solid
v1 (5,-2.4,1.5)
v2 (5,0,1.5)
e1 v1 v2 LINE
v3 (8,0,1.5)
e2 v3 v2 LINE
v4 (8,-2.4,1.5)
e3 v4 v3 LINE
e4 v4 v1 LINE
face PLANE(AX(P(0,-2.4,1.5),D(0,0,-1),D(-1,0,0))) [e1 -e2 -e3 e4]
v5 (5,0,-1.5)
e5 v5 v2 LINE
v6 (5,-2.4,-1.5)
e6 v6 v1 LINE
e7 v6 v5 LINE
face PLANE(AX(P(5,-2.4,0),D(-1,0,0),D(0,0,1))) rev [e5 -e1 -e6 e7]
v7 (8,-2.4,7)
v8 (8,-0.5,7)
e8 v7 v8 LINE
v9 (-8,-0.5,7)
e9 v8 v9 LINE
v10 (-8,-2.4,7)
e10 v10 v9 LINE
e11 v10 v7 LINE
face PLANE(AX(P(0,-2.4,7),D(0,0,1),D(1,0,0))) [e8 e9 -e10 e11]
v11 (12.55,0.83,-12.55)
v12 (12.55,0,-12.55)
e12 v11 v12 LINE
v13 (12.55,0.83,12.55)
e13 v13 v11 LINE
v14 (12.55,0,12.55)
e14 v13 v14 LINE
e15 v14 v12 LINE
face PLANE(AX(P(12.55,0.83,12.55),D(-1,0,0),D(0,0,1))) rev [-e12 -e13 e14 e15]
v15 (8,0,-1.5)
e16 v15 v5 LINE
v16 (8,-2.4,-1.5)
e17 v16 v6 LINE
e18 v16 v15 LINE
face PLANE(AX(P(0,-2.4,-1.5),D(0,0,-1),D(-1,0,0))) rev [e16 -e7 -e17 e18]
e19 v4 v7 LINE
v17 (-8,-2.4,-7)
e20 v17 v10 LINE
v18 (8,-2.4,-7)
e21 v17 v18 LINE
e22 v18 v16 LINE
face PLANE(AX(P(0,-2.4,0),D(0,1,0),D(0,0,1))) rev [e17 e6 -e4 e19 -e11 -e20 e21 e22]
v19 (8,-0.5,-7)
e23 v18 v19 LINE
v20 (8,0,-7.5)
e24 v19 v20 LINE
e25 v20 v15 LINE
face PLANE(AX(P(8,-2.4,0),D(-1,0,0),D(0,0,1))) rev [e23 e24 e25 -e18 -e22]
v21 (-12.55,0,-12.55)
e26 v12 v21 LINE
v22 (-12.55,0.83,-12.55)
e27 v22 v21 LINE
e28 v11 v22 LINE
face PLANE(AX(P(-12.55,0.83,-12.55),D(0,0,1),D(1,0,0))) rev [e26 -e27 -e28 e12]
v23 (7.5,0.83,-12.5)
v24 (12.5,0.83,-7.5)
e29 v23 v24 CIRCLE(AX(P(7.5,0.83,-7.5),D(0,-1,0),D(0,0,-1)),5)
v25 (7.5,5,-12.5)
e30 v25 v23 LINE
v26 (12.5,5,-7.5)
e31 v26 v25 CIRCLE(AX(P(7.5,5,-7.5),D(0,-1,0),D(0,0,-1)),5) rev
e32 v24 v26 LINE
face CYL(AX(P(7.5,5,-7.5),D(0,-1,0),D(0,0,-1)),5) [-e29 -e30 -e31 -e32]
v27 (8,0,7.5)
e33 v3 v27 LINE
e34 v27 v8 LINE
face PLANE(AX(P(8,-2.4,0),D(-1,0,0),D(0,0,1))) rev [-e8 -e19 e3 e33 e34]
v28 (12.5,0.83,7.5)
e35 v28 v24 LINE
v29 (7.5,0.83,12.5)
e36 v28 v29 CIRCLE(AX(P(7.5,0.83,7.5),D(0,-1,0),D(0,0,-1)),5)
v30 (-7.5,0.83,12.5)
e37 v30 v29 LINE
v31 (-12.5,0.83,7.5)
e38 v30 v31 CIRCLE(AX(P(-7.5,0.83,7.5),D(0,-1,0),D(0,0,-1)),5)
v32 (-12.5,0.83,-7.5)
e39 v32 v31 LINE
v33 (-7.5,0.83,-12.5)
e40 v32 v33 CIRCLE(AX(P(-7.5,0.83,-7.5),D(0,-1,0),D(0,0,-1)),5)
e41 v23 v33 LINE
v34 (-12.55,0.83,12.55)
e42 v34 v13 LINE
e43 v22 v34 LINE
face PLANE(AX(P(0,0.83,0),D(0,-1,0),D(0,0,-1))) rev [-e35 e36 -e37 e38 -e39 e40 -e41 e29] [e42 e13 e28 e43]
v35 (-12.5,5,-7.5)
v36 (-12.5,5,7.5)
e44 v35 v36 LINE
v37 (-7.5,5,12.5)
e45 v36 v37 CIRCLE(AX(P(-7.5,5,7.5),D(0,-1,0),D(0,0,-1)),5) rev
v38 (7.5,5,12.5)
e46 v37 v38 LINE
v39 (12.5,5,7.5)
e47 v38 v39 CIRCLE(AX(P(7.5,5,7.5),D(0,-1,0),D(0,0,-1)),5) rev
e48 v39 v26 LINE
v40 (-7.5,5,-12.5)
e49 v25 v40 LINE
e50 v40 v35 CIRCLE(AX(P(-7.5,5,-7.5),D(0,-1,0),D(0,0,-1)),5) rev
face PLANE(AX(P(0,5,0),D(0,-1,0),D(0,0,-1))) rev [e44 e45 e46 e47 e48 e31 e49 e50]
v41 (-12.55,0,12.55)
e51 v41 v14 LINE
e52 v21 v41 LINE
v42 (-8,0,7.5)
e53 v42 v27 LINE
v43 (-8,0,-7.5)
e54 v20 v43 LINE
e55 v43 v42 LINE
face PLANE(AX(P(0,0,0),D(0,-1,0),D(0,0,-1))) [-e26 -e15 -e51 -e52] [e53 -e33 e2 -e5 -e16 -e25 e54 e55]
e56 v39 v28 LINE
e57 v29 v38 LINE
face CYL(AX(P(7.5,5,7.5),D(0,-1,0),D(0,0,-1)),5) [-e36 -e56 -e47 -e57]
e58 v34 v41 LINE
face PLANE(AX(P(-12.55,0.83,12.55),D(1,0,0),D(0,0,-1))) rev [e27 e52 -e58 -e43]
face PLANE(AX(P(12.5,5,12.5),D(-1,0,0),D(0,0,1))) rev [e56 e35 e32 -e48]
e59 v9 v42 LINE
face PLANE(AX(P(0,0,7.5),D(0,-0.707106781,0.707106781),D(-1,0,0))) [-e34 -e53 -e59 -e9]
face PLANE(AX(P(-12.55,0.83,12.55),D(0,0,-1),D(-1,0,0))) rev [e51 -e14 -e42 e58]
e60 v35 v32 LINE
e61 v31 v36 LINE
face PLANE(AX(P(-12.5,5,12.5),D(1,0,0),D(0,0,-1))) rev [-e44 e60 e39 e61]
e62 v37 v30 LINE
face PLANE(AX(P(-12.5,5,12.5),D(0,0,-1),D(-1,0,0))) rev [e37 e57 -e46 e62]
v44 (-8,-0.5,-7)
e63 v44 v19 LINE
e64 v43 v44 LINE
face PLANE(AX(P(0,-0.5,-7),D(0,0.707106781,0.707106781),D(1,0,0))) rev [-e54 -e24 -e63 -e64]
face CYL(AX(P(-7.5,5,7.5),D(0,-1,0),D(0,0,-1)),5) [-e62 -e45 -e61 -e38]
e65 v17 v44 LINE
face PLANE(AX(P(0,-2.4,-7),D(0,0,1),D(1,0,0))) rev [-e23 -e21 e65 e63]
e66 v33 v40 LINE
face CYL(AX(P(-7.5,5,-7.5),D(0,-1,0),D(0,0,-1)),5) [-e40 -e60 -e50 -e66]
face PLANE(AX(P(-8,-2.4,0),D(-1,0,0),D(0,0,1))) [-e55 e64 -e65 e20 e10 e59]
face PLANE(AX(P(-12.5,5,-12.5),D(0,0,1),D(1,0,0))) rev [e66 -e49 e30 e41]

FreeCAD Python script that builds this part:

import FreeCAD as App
import Part
import Sketcher

V = App.Vector


def edges_at(feature, points):
    """Names of the edges that pass closest to the given points."""
    edges = feature.Shape.Edges
    near = lambda p: min(range(len(edges)), key=lambda i: edges[i].distToShape(Part.Vertex(*p))[0])
    return sorted({f"Edge{near(p) + 1}" for p in points})

doc = App.newDocument("Part")
params = doc.addObject("Spreadsheet::Sheet", "Params")
for row, (alias, value) in enumerate([
    ("sketch1_width", "25.1 mm"),
    ("pad1_length", "0.83 mm"),
    ("sketch2_width", "25 mm"),
    ("pad2_length", "5 mm"),
    ("fillet_radius", "5 mm"),
    ("sketch3_width", "16 mm"),
    ("sketch3_width2", "3 mm"),
    ("sketch3_height", "14 mm"),
    ("pad3_length", "2.4 mm"),
    ("chamfer_size", "0.5 mm"),
], start=1):
    params.set(f"A{row}", alias)
    params.set(f"B{row}", "=" + value)
    params.setAlias(f"B{row}", alias)

body = doc.addObject("PartDesign::Body", "Body")

# Sketch on XZ plane
sketch1 = doc.addObject("Sketcher::SketchObject", "Sketch")
body.addObject(sketch1)
sketch1.AttachmentSupport = (doc.XZ_Plane, [""])
sketch1.MapMode = "FlatFace"
sketch1.addGeometry(Part.LineSegment(V(-12.55, -12.55, 0), V(-12.55, 12.55, 0)), False)
sketch1.addGeometry(Part.LineSegment(V(-12.55, 12.55, 0), V(12.55, 12.55, 0)), False)
sketch1.addGeometry(Part.LineSegment(V(12.55, 12.55, 0), V(12.55, -12.55, 0)), False)
sketch1.addGeometry(Part.LineSegment(V(12.55, -12.55, 0), V(-12.55, -12.55, 0)), False)
sketch1.addConstraint(Sketcher.Constraint("Coincident", 0, 2, 1, 1))
sketch1.addConstraint(Sketcher.Constraint("Coincident", 1, 2, 2, 1))
sketch1.addConstraint(Sketcher.Constraint("Coincident", 2, 2, 3, 1))
sketch1.addConstraint(Sketcher.Constraint("Coincident", 3, 2, 0, 1))
sketch1.addConstraint(Sketcher.Constraint("Vertical", 0))
sketch1.addConstraint(Sketcher.Constraint("Horizontal", 1))
sketch1.addConstraint(Sketcher.Constraint("Vertical", 2))
sketch1.addConstraint(Sketcher.Constraint("Horizontal", 3))
sketch1.addConstraint(Sketcher.Constraint("Symmetric", 0, 2, 2, 2, -1, 1))
sketch1.addConstraint(Sketcher.Constraint("Equal", 3, 0))
sketch1.addConstraint(Sketcher.Constraint("DistanceX", 1, 1, 1, 2, 25.1))
sketch1.setExpression("Constraints[10]", "Params.sketch1_width")
pad1 = doc.addObject("PartDesign::Pad", "Pad")
body.addObject(pad1)
pad1.Profile = sketch1
pad1.setExpression("Length", "Params.pad1_length")
pad1.Reversed = True

# Sketch on XZ plane
sketch2 = doc.addObject("Sketcher::SketchObject", "Sketch001")
body.addObject(sketch2)
sketch2.AttachmentSupport = (doc.XZ_Plane, [""])
sketch2.MapMode = "FlatFace"
sketch2.addGeometry(Part.LineSegment(V(-12.5, -12.5, 0), V(-12.5, 12.5, 0)), False)
sketch2.addGeometry(Part.LineSegment(V(-12.5, 12.5, 0), V(12.5, 12.5, 0)), False)
sketch2.addGeometry(Part.LineSegment(V(12.5, 12.5, 0), V(12.5, -12.5, 0)), False)
sketch2.addGeometry(Part.LineSegment(V(12.5, -12.5, 0), V(-12.5, -12.5, 0)), False)
sketch2.addConstraint(Sketcher.Constraint("Coincident", 0, 2, 1, 1))
sketch2.addConstraint(Sketcher.Constraint("Coincident", 1, 2, 2, 1))
sketch2.addConstraint(Sketcher.Constraint("Coincident", 2, 2, 3, 1))
sketch2.addConstraint(Sketcher.Constraint("Coincident", 3, 2, 0, 1))
sketch2.addConstraint(Sketcher.Constraint("Vertical", 0))
sketch2.addConstraint(Sketcher.Constraint("Horizontal", 1))
sketch2.addConstraint(Sketcher.Constraint("Vertical", 2))
sketch2.addConstraint(Sketcher.Constraint("Horizontal", 3))
sketch2.addConstraint(Sketcher.Constraint("Symmetric", 0, 2, 2, 2, -1, 1))
sketch2.addConstraint(Sketcher.Constraint("Equal", 3, 0))
sketch2.addConstraint(Sketcher.Constraint("DistanceX", 1, 1, 1, 2, 25.0))
sketch2.setExpression("Constraints[10]", "Params.sketch2_width")
pad2 = doc.addObject("PartDesign::Pad", "Pad001")
body.addObject(pad2)
pad2.Profile = sketch2
pad2.setExpression("Length", "Params.pad2_length")
pad2.Reversed = True
doc.recompute()

fillet = doc.addObject("PartDesign::Fillet", "Fillet")
body.addObject(fillet)
fillet.Base = (pad2, edges_at(pad2, [
    (12.5, 2.915, 12.5),
    (12.5, 2.915, -12.5),
    (-12.5, 2.915, -12.5),
    (-12.5, 2.915, 12.5),
]))
fillet.setExpression("Radius", "Params.fillet_radius")

# Sketch on XZ plane
sketch3 = doc.addObject("Sketcher::SketchObject", "Sketch002")
body.addObject(sketch3)
sketch3.AttachmentSupport = (doc.XZ_Plane, [""])
sketch3.MapMode = "FlatFace"
sketch3.addGeometry(Part.LineSegment(V(8, -7, 0), V(-8, -7, 0)), False)
sketch3.addGeometry(Part.LineSegment(V(-8, -7, 0), V(-8, 7, 0)), False)
sketch3.addGeometry(Part.LineSegment(V(-8, 7, 0), V(8, 7, 0)), False)
sketch3.addGeometry(Part.LineSegment(V(8, 7, 0), V(8, 1.5, 0)), False)
sketch3.addGeometry(Part.LineSegment(V(8, 1.5, 0), V(5, 1.5, 0)), False)
sketch3.addGeometry(Part.LineSegment(V(5, 1.5, 0), V(5, -1.5, 0)), False)
sketch3.addGeometry(Part.LineSegment(V(5, -1.5, 0), V(8, -1.5, 0)), False)
sketch3.addGeometry(Part.LineSegment(V(8, -1.5, 0), V(8, -7, 0)), False)
sketch3.addConstraint(Sketcher.Constraint("Coincident", 0, 2, 1, 1))
sketch3.addConstraint(Sketcher.Constraint("Coincident", 1, 2, 2, 1))
sketch3.addConstraint(Sketcher.Constraint("Coincident", 2, 2, 3, 1))
sketch3.addConstraint(Sketcher.Constraint("Coincident", 3, 2, 4, 1))
sketch3.addConstraint(Sketcher.Constraint("Coincident", 4, 2, 5, 1))
sketch3.addConstraint(Sketcher.Constraint("Coincident", 5, 2, 6, 1))
sketch3.addConstraint(Sketcher.Constraint("Coincident", 6, 2, 7, 1))
sketch3.addConstraint(Sketcher.Constraint("Coincident", 7, 2, 0, 1))
sketch3.addConstraint(Sketcher.Constraint("Horizontal", 0))
sketch3.addConstraint(Sketcher.Constraint("Vertical", 1))
sketch3.addConstraint(Sketcher.Constraint("Horizontal", 2))
sketch3.addConstraint(Sketcher.Constraint("Vertical", 3))
sketch3.addConstraint(Sketcher.Constraint("Horizontal", 4))
sketch3.addConstraint(Sketcher.Constraint("Vertical", 5))
sketch3.addConstraint(Sketcher.Constraint("Horizontal", 6))
sketch3.addConstraint(Sketcher.Constraint("Vertical", 7))
sketch3.addConstraint(Sketcher.Constraint("Symmetric", 0, 2, 2, 2, -1, 1))
sketch3.addConstraint(Sketcher.Constraint("Symmetric", 3, 2, 6, 2, -1))
sketch3.addConstraint(Sketcher.Constraint("Equal", 6, 5))
sketch3.addConstraint(Sketcher.Constraint("DistanceX", 0, 2, 0, 1, 16.0))
sketch3.addConstraint(Sketcher.Constraint("DistanceX", 4, 2, 4, 1, 3.0))
sketch3.addConstraint(Sketcher.Constraint("DistanceY", 1, 1, 1, 2, 14.0))
sketch3.setExpression("Constraints[19]", "Params.sketch3_width")
sketch3.setExpression("Constraints[20]", "Params.sketch3_width2")
sketch3.setExpression("Constraints[21]", "Params.sketch3_height")
pad3 = doc.addObject("PartDesign::Pad", "Pad002")
body.addObject(pad3)
pad3.Profile = sketch3
pad3.setExpression("Length", "Params.pad3_length")
doc.recompute()

chamfer = doc.addObject("PartDesign::Chamfer", "Chamfer")
body.addObject(chamfer)
chamfer.Base = (pad3, edges_at(pad3, [(0, 0, -7), (0, 0, 7)]))
chamfer.setExpression("Size", "Params.chamfer_size")

doc.recompute()
